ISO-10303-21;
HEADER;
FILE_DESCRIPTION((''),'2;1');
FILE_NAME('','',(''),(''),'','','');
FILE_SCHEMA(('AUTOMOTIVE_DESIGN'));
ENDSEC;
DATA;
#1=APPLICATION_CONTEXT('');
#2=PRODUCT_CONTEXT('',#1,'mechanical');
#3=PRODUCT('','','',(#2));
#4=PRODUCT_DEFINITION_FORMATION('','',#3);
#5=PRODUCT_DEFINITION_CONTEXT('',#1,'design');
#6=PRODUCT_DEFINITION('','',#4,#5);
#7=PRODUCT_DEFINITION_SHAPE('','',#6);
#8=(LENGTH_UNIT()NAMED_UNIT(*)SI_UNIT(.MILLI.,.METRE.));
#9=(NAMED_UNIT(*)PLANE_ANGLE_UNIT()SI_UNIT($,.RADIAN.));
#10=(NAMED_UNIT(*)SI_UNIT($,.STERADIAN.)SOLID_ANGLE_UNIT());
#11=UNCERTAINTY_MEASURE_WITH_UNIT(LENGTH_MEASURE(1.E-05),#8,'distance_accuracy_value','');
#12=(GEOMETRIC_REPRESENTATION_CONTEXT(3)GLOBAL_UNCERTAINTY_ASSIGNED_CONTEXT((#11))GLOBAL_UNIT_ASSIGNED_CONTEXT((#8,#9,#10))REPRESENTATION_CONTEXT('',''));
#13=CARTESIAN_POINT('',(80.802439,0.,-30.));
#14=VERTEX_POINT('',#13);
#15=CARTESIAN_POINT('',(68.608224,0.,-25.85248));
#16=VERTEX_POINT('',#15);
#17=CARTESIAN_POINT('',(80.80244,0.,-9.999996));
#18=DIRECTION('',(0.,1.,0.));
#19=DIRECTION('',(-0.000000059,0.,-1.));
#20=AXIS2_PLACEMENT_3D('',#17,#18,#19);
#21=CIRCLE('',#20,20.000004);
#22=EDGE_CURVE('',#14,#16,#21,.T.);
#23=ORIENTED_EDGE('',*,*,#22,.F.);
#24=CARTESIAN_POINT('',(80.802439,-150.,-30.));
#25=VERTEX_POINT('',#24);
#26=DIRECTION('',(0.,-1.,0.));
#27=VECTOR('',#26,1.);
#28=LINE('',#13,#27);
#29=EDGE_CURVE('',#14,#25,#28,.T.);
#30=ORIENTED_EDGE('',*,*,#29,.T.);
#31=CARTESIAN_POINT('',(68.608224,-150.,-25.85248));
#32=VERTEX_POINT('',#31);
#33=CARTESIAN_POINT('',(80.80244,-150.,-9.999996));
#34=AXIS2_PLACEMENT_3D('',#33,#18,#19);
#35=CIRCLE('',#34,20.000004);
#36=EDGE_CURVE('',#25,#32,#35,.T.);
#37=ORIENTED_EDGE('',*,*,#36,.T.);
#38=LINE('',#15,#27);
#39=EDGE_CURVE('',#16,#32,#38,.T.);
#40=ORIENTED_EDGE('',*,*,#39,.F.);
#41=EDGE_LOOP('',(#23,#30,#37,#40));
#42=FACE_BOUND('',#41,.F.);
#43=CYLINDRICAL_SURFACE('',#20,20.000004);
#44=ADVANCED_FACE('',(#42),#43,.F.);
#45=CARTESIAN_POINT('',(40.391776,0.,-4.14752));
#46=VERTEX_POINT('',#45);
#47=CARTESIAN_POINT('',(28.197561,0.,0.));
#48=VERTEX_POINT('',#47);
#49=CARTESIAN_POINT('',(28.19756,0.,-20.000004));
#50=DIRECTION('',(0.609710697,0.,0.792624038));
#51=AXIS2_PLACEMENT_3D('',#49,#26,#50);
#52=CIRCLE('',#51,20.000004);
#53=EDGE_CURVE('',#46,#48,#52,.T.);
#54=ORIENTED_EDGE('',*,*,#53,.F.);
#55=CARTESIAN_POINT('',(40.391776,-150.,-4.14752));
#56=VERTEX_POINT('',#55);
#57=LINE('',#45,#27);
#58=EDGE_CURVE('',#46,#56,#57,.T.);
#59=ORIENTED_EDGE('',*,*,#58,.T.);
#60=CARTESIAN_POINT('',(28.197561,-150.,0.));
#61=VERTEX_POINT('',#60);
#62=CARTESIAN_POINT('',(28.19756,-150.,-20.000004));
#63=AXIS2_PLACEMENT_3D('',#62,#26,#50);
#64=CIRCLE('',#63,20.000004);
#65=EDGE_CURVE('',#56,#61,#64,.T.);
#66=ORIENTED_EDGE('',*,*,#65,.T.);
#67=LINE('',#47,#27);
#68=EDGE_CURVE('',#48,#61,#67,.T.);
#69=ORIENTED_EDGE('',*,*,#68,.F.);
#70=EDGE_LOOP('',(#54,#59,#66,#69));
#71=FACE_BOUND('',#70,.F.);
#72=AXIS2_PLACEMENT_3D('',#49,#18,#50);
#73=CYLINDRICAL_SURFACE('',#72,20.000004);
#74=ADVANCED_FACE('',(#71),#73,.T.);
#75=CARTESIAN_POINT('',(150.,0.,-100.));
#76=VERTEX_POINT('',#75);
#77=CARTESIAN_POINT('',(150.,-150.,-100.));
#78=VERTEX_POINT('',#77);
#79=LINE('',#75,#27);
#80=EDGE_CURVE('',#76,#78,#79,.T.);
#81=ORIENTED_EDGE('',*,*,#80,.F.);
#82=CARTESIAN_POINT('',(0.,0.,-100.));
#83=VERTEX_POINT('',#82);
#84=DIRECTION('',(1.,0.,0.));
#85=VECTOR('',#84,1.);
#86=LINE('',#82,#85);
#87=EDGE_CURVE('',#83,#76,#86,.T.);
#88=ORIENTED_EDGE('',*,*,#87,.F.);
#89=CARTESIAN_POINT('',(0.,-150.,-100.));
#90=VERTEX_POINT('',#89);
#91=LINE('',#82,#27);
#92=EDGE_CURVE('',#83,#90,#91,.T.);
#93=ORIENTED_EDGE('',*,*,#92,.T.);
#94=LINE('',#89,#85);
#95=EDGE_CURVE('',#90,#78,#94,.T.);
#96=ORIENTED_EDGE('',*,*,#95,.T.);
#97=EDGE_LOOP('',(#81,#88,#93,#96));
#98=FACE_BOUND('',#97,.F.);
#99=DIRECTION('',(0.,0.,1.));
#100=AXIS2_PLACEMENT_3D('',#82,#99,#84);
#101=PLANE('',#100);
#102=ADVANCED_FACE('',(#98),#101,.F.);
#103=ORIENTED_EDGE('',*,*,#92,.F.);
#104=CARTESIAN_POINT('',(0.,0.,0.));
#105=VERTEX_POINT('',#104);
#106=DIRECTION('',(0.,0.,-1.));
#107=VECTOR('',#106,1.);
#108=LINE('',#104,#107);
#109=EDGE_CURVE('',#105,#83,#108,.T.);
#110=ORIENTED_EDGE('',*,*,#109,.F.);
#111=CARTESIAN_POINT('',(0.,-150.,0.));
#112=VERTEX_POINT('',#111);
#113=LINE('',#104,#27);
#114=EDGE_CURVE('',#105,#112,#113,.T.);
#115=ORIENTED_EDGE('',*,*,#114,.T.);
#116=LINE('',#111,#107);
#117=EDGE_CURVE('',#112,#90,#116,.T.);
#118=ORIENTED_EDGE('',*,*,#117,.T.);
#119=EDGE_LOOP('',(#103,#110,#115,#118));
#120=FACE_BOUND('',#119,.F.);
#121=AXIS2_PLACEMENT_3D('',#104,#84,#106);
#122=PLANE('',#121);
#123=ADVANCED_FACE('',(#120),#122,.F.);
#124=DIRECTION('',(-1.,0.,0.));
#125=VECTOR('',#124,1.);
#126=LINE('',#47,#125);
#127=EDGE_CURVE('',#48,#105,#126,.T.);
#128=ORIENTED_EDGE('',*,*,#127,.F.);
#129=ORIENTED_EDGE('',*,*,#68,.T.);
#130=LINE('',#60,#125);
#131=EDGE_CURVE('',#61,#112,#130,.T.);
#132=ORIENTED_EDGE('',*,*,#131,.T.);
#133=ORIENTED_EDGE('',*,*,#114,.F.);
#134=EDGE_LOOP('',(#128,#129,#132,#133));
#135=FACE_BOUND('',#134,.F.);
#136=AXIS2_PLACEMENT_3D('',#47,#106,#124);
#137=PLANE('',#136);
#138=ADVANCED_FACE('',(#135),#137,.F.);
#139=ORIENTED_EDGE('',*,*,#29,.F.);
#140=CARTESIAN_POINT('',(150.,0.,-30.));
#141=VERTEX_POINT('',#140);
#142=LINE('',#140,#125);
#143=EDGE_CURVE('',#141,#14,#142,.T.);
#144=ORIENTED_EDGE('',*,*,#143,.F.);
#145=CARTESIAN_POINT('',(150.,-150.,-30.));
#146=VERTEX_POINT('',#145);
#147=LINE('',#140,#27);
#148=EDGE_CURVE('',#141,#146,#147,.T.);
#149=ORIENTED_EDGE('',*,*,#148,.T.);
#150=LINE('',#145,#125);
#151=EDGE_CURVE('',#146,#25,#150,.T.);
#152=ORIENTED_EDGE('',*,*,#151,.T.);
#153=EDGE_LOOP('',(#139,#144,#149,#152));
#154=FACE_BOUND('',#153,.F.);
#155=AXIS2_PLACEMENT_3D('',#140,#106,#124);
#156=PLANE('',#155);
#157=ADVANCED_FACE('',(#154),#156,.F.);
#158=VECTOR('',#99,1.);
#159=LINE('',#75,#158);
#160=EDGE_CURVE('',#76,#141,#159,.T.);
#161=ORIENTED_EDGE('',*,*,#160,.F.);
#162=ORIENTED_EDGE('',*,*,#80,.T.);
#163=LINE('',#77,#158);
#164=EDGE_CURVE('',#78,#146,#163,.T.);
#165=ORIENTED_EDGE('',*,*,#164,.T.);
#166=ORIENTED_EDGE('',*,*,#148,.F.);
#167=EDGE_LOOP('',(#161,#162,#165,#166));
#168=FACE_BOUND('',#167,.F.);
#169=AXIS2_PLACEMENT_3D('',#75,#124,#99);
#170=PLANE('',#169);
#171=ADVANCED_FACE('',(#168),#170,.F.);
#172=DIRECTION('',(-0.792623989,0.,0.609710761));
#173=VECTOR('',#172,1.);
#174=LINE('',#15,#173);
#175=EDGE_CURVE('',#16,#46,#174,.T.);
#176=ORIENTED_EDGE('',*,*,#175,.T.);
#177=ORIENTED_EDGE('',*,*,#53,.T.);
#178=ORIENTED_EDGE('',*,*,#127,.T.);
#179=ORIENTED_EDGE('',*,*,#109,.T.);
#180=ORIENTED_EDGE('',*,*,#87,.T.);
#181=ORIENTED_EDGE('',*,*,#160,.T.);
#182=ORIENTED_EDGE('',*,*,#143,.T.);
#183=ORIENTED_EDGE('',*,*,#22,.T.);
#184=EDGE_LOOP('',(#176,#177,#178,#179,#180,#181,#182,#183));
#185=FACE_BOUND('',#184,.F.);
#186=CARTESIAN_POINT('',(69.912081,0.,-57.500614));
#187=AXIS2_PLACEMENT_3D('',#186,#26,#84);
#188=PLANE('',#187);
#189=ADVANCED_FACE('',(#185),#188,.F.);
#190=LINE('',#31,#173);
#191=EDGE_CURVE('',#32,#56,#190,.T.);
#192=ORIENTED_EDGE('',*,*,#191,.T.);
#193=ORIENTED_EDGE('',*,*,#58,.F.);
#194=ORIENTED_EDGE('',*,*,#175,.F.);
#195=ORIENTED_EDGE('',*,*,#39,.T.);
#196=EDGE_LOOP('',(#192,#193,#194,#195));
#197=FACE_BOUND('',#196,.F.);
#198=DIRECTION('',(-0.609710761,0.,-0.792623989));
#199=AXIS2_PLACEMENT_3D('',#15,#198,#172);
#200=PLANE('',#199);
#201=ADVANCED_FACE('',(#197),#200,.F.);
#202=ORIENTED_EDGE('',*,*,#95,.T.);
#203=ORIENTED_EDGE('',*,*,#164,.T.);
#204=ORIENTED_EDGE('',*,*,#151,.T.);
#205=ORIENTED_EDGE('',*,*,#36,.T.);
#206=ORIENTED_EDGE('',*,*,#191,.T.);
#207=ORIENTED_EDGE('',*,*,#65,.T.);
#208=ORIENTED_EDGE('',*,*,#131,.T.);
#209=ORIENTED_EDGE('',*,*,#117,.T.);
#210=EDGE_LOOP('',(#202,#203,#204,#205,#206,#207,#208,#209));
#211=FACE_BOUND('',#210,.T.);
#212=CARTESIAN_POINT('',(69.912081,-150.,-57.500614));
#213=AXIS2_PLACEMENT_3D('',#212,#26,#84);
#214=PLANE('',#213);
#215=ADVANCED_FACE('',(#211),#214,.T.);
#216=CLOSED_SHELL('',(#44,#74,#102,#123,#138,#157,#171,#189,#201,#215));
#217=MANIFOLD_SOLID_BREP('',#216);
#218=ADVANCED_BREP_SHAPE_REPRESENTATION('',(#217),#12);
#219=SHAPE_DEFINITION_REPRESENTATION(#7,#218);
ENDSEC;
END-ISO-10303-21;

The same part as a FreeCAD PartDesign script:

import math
import FreeCAD as App
import Part
import Sketcher

V = App.Vector
Q = App.Units.Quantity

doc = App.newDocument("Part")
body = doc.addObject("PartDesign::Body", "Body")

# Sketch on XZ plane
sketch1 = body.newObject("Sketcher::SketchObject", "Sketch")
sketch1.AttachmentSupport = (doc.getObject("XZ_Plane"), [""])
sketch1.MapMode = "FlatFace"
sketch1.addGeometry([
    Part.LineSegment(V(28, 0, 0), V(0, 0, 0)),  # 0
    Part.LineSegment(V(0, 0, 0), V(0, -100, 0)),  # 1
    Part.LineSegment(V(0, -100, 0), V(150, -100, 0)),  # 2
    Part.LineSegment(V(150, -100, 0), V(150, -30, 0)),  # 3
    Part.LineSegment(V(150, -30, 0), V(81, -30, 0)),  # 4
    Part.ArcOfCircle(Part.Circle(V(81, -10, 0), V(0, 0, 1), 20), math.radians(-128), math.radians(-90)),  # 5
    Part.LineSegment(V(69, -26, 0), V(40, -4, 0)),  # 6
    Part.ArcOfCircle(Part.Circle(V(28, -20, 0), V(0, 0, 1), 20), math.radians(52), math.radians(90)),  # 7
], False)
sketch1.addConstraint([
    Sketcher.Constraint("Coincident", 0, 2, 1, 1),
    Sketcher.Constraint("Coincident", 1, 2, 2, 1),
    Sketcher.Constraint("Coincident", 2, 2, 3, 1),
    Sketcher.Constraint("Coincident", 3, 2, 4, 1),
    Sketcher.Constraint("Tangent", 4, 2, 5, 2),
    Sketcher.Constraint("Tangent", 5, 1, 6, 1),
    Sketcher.Constraint("Tangent", 6, 2, 7, 1),
    Sketcher.Constraint("Tangent", 7, 2, 0, 1),
    Sketcher.Constraint("Horizontal", 0),
    Sketcher.Constraint("Vertical", 1),
    Sketcher.Constraint("Horizontal", 2),
    Sketcher.Constraint("Vertical", 3),
    Sketcher.Constraint("Horizontal", 4),
    Sketcher.Constraint("Coincident", 0, 2, -1, 1),
    Sketcher.Constraint("Equal", 5, 7),
    Sketcher.Constraint("DistanceX", 2, 1, 2, 2, Q("150 mm")),
    Sketcher.Constraint("DistanceY", 1, 2, 1, 1, Q("100 mm")),
    Sketcher.Constraint("DistanceY", 3, 1, 3, 2, Q("70 mm")),
    Sketcher.Constraint("Radius", 5, Q("20.000004 mm")),
    Sketcher.Constraint("DistanceX", 0, 2, 0, 1, Q("28.197561 mm")),
    Sketcher.Constraint("DistanceX", 4, 2, 4, 1, Q("69.197561 mm")),
])
pad1 = body.newObject("PartDesign::Pad", "Pad")
pad1.Profile = sketch1
pad1.Length = 150

doc.recompute()
